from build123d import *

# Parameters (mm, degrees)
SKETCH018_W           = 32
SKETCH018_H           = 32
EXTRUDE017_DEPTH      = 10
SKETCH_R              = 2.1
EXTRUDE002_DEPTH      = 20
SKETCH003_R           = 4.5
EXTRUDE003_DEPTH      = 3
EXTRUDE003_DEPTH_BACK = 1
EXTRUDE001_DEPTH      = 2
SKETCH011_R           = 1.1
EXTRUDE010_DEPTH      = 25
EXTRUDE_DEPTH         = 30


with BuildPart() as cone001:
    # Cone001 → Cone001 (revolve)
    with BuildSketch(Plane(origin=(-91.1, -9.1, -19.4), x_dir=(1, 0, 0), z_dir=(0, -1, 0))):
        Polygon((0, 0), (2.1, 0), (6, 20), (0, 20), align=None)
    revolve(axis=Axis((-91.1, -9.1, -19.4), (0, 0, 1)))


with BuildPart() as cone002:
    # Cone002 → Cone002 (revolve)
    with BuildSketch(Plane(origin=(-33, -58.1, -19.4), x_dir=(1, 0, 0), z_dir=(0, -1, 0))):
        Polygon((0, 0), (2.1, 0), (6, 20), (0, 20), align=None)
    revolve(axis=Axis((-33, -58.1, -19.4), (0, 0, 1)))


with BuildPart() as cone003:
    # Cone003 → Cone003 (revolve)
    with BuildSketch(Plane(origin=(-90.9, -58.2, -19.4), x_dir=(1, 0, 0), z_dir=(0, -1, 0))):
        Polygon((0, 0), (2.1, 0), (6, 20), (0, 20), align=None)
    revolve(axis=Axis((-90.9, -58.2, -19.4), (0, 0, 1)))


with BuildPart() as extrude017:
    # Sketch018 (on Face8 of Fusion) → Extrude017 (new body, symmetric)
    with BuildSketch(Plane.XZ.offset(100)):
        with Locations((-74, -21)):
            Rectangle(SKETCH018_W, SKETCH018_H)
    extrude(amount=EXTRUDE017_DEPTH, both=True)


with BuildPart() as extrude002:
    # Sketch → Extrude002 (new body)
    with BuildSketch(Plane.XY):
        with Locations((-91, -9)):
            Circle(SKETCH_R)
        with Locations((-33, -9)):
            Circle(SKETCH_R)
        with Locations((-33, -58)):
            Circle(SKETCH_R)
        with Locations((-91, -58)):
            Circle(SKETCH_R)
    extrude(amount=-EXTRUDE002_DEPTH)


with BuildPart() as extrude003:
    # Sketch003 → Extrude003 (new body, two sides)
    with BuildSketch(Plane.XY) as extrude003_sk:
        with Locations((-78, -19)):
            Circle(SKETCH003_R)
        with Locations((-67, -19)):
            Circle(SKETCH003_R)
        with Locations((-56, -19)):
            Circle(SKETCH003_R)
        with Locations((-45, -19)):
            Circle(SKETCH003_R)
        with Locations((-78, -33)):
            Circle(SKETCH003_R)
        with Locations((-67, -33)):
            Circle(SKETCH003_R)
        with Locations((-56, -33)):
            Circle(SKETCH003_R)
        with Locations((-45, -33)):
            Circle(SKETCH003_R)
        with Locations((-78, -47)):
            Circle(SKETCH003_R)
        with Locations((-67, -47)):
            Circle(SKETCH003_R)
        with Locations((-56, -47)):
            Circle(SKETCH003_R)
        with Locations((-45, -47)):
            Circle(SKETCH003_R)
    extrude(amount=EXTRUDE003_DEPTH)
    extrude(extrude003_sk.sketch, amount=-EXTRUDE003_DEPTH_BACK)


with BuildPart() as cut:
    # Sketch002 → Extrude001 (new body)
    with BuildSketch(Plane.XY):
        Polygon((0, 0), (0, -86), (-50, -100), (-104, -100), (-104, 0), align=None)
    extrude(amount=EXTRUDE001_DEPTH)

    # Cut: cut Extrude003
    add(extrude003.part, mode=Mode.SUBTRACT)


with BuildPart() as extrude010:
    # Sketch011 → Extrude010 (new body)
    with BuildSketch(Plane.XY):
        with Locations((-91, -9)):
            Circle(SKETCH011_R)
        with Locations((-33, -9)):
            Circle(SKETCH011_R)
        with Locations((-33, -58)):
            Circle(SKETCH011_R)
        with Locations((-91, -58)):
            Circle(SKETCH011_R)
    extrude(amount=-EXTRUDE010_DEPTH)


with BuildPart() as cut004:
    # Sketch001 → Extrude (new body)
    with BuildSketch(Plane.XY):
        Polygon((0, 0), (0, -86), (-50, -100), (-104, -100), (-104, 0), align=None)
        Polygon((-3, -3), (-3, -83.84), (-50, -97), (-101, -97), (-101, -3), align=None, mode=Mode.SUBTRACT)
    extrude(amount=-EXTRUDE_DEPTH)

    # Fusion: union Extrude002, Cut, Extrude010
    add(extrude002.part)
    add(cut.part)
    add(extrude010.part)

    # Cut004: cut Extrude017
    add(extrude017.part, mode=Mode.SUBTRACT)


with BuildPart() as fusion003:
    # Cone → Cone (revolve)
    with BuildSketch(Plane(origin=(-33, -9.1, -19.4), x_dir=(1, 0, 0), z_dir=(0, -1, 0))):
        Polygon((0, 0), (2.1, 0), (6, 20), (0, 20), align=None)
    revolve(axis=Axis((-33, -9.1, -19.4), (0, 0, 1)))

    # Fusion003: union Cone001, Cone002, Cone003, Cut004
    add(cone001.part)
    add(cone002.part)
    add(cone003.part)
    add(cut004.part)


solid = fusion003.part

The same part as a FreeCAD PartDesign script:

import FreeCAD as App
import Part
import Sketcher
from FreeCAD import Vector
Q = App.Units.Quantity

doc = App.newDocument("Part")
body = doc.addObject("PartDesign::Body", "Body")

sketch1 = body.newObject("Sketcher::SketchObject", "Sketch")
sketch1.AttachmentSupport = (doc.getObject("XZ_Plane"), [""])
sketch1.MapMode = "FlatFace"
sketch1.AttachmentOffset = App.Placement(Vector(0, 0, 9.1), App.Rotation())
sketch1.addGeometry([
    Part.LineSegment(Vector(-91.1, -19.4, 0), Vector(-89, -19.4, 0)),
    Part.LineSegment(Vector(-89, -19.4, 0), Vector(-85.1, 0.6, 0)),
    Part.LineSegment(Vector(-85.1, 0.6, 0), Vector(-91.1, 0.6, 0)),
    Part.LineSegment(Vector(-91.1, 0.6, 0), Vector(-91.1, -19.4, 0)),
], False)
sketch1.addGeometry(Part.LineSegment(Vector(-91.1, -19.4, 0), Vector(-91.1, 0.6, 0)), True)
sketch1.addConstraint([
    Sketcher.Constraint("Coincident", 0, 2, 1, 1),
    Sketcher.Constraint("Coincident", 1, 2, 2, 1),
    Sketcher.Constraint("Coincident", 2, 2, 3, 1),
    Sketcher.Constraint("Coincident", 3, 2, 0, 1),
    Sketcher.Constraint("Horizontal", 0),
    Sketcher.Constraint("Horizontal", 2),
    Sketcher.Constraint("Vertical", 3),
    Sketcher.Constraint("Vertical", 4),
    Sketcher.Constraint("Coincident", 4, 1, 3, 2),
    Sketcher.Constraint("Horizontal", 1, 2, 4, 2),
    Sketcher.Constraint("DistanceX", 2, 2, 2, 1, Q("6 mm")),
    Sketcher.Constraint("DistanceY", 3, 2, 3, 1, Q("20 mm")),
    Sketcher.Constraint("DistanceX", 0, 1, 0, 2, Q("2.1 mm")),
    Sketcher.Constraint("DistanceX", 0, 2, -1, 1, Q("89 mm")),
    Sketcher.Constraint("DistanceY", 0, 2, -1, 1, Q("19.4 mm")),
])
revolution = body.newObject("PartDesign::Revolution", "Revolution")
revolution.Profile = sketch1
revolution.ReferenceAxis = (sketch1, ["Axis0"])
revolution.Angle = 360
body2 = doc.addObject("PartDesign::Body", "Body001")

sketch2 = body2.newObject("Sketcher::SketchObject", "Sketch001")
sketch2.AttachmentSupport = (doc.getObject("XZ_Plane001"), [""])
sketch2.MapMode = "FlatFace"
sketch2.AttachmentOffset = App.Placement(Vector(0, 0, 58.1), App.Rotation())
sketch2.addGeometry([
    Part.LineSegment(Vector(-33, -19.4, 0), Vector(-30.9, -19.4, 0)),
    Part.LineSegment(Vector(-30.9, -19.4, 0), Vector(-27, 0.6, 0)),
    Part.LineSegment(Vector(-27, 0.6, 0), Vector(-33, 0.6, 0)),
    Part.LineSegment(Vector(-33, 0.6, 0), Vector(-33, -19.4, 0)),
], False)
sketch2.addGeometry(Part.LineSegment(Vector(-33, -19.4, 0), Vector(-33, 0.6, 0)), True)
sketch2.addConstraint([
    Sketcher.Constraint("Coincident", 0, 2, 1, 1),
    Sketcher.Constraint("Coincident", 1, 2, 2, 1),
    Sketcher.Constraint("Coincident", 2, 2, 3, 1),
    Sketcher.Constraint("Coincident", 3, 2, 0, 1),
    Sketcher.Constraint("Horizontal", 0),
    Sketcher.Constraint("Horizontal", 2),
    Sketcher.Constraint("Vertical", 3),
    Sketcher.Constraint("Vertical", 4),
    Sketcher.Constraint("Coincident", 4, 1, 3, 2),
    Sketcher.Constraint("Horizontal", 1, 2, 4, 2),
    Sketcher.Constraint("DistanceX", 2, 2, 2, 1, Q("6 mm")),
    Sketcher.Constraint("DistanceY", 3, 2, 3, 1, Q("20 mm")),
    Sketcher.Constraint("DistanceX", 0, 1, 0, 2, Q("2.1 mm")),
    Sketcher.Constraint("DistanceX", 1, 2, -1, 1, Q("27 mm")),
    Sketcher.Constraint("DistanceY", 0, 2, -1, 1, Q("19.4 mm")),
])
revolution2 = body2.newObject("PartDesign::Revolution", "Revolution001")
revolution2.Profile = sketch2
revolution2.ReferenceAxis = (sketch2, ["Axis0"])
revolution2.Angle = 360
body3 = doc.addObject("PartDesign::Body", "Body002")

sketch3 = body3.newObject("Sketcher::SketchObject", "Sketch002")
sketch3.AttachmentSupport = (doc.getObject("XZ_Plane002"), [""])
sketch3.MapMode = "FlatFace"
sketch3.AttachmentOffset = App.Placement(Vector(0, 0, 58.2), App.Rotation())
sketch3.addGeometry([
    Part.LineSegment(Vector(-90.9, -19.4, 0), Vector(-88.8, -19.4, 0)),
    Part.LineSegment(Vector(-88.8, -19.4, 0), Vector(-84.9, 0.6, 0)),
    Part.LineSegment(Vector(-84.9, 0.6, 0), Vector(-90.9, 0.6, 0)),
    Part.LineSegment(Vector(-90.9, 0.6, 0), Vector(-90.9, -19.4, 0)),
], False)
sketch3.addGeometry(Part.LineSegment(Vector(-90.9, -19.4, 0), Vector(-90.9, 0.6, 0)), True)
sketch3.addConstraint([
    Sketcher.Constraint("Coincident", 0, 2, 1, 1),
    Sketcher.Constraint("Coincident", 1, 2, 2, 1),
    Sketcher.Constraint("Coincident", 2, 2, 3, 1),
    Sketcher.Constraint("Coincident", 3, 2, 0, 1),
    Sketcher.Constraint("Horizontal", 0),
    Sketcher.Constraint("Horizontal", 2),
    Sketcher.Constraint("Vertical", 3),
    Sketcher.Constraint("Vertical", 4),
    Sketcher.Constraint("Coincident", 4, 1, 3, 2),
    Sketcher.Constraint("Horizontal", 1, 2, 4, 2),
    Sketcher.Constraint("DistanceX", 2, 2, 2, 1, Q("6 mm")),
    Sketcher.Constraint("DistanceY", 3, 2, 3, 1, Q("20 mm")),
    Sketcher.Constraint("DistanceX", 0, 1, 0, 2, Q("2.1 mm")),
    Sketcher.Constraint("DistanceX", 0, 2, -1, 1, Q("88.8 mm")),
    Sketcher.Constraint("DistanceY", 0, 2, -1, 1, Q("19.4 mm")),
])
revolution3 = body3.newObject("PartDesign::Revolution", "Revolution002")
revolution3.Profile = sketch3
revolution3.ReferenceAxis = (sketch3, ["Axis0"])
revolution3.Angle = 360
body4 = doc.addObject("PartDesign::Body", "Body003")

sketch4 = body4.newObject("Sketcher::SketchObject", "Sketch003")
sketch4.AttachmentSupport = (doc.getObject("XZ_Plane003"), [""])
sketch4.MapMode = "FlatFace"
sketch4.AttachmentOffset = App.Placement(Vector(0, 0, 100), App.Rotation())
sketch4.addGeometry([
    Part.LineSegment(Vector(-90, -5, 0), Vector(-90, -37, 0)),
    Part.LineSegment(Vector(-90, -37, 0), Vector(-58, -37, 0)),
    Part.LineSegment(Vector(-58, -37, 0), Vector(-58, -5, 0)),
    Part.LineSegment(Vector(-58, -5, 0), Vector(-90, -5, 0)),
], False)
sketch4.addConstraint([
    Sketcher.Constraint("Coincident", 0, 2, 1, 1),
    Sketcher.Constraint("Coincident", 1, 2, 2, 1),
    Sketcher.Constraint("Coincident", 2, 2, 3, 1),
    Sketcher.Constraint("Coincident", 3, 2, 0, 1),
    Sketcher.Constraint("Vertical", 0),
    Sketcher.Constraint("Horizontal", 1),
    Sketcher.Constraint("Vertical", 2),
    Sketcher.Constraint("Horizontal", 3),
    Sketcher.Constraint("Equal", 3, 0),
    Sketcher.Constraint("DistanceX", 1, 1, 1, 2, Q("32 mm")),
    Sketcher.Constraint("DistanceX", 0, 2, -1, 1, Q("90 mm")),
    Sketcher.Constraint("DistanceY", 0, 2, -1, 1, Q("37 mm")),
])
pad1 = body4.newObject("PartDesign::Pad", "Pad")
pad1.Profile = sketch4
pad1.Length = 20
pad1.Midplane = True
body5 = doc.addObject("PartDesign::Body", "Body004")
body5.AllowCompound = True

sketch5 = body5.newObject("Sketcher::SketchObject", "Sketch004")
sketch5.AttachmentSupport = (doc.getObject("XY_Plane004"), [""])
sketch5.MapMode = "FlatFace"
sketch5.addGeometry([
    Part.Circle(Vector(-91, -9, 0), Vector(0, 0, 1), 2.1),
    Part.Circle(Vector(-33, -9, 0), Vector(0, 0, 1), 2.1),
    Part.Circle(Vector(-33, -58, 0), Vector(0, 0, 1), 2.1),
    Part.Circle(Vector(-91, -58, 0), Vector(0, 0, 1), 2.1),
], False)
sketch5.addConstraint([
    Sketcher.Constraint("Equal", 0, 1),
    Sketcher.Constraint("Equal", 1, 2),
    Sketcher.Constraint("Equal", 2, 3),
    Sketcher.Constraint("Horizontal", 0, 3, 1, 3),
    Sketcher.Constraint("Horizontal", 2, 3, 3, 3),
    Sketcher.Constraint("Vertical", 1, 3, 2, 3),
    Sketcher.Constraint("Vertical", 0, 3, 3, 3),
    Sketcher.Constraint("Diameter", 0, Q("4.2 mm")),
    Sketcher.Constraint("DistanceX", 0, 3, -1, 1, Q("91 mm")),
    Sketcher.Constraint("DistanceY", 0, 3, -1, 1, Q("9 mm")),
    Sketcher.Constraint("DistanceX", 1, 3, -1, 1, Q("33 mm")),
    Sketcher.Constraint("DistanceY", 2, 3, -1, 1, Q("58 mm")),
])
pad2 = body5.newObject("PartDesign::Pad", "Pad001")
pad2.Profile = sketch5
pad2.Length = 20
pad2.Reversed = True
body6 = doc.addObject("PartDesign::Body", "Body005")
body6.AllowCompound = True

sketch6 = body6.newObject("Sketcher::SketchObject", "Sketch005")
sketch6.AttachmentSupport = (doc.getObject("XY_Plane005"), [""])
sketch6.MapMode = "FlatFace"
sketch6.addGeometry([
    Part.Circle(Vector(-78, -19, 0), Vector(0, 0, 1), 4.5),
    Part.Circle(Vector(-67, -19, 0), Vector(0, 0, 1), 4.5),
    Part.Circle(Vector(-56, -19, 0), Vector(0, 0, 1), 4.5),
    Part.Circle(Vector(-45, -19, 0), Vector(0, 0, 1), 4.5),
    Part.Circle(Vector(-78, -33, 0), Vector(0, 0, 1), 4.5),
    Part.Circle(Vector(-67, -33, 0), Vector(0, 0, 1), 4.5),
    Part.Circle(Vector(-56, -33, 0), Vector(0, 0, 1), 4.5),
    Part.Circle(Vector(-45, -33, 0), Vector(0, 0, 1), 4.5),
    Part.Circle(Vector(-78, -47, 0), Vector(0, 0, 1), 4.5),
    Part.Circle(Vector(-67, -47, 0), Vector(0, 0, 1), 4.5),
    Part.Circle(Vector(-56, -47, 0), Vector(0, 0, 1), 4.5),
    Part.Circle(Vector(-45, -47, 0), Vector(0, 0, 1), 4.5),
], False)
sketch6.addConstraint([
    Sketcher.Constraint("Equal", 0, 1),
    Sketcher.Constraint("Equal", 1, 2),
    Sketcher.Constraint("Equal", 2, 3),
    Sketcher.Constraint("Equal", 3, 4),
    Sketcher.Constraint("Equal", 4, 5),
    Sketcher.Constraint("Equal", 5, 6),
    Sketcher.Constraint("Equal", 6, 7),
    Sketcher.Constraint("Equal", 7, 8),
    Sketcher.Constraint("Equal", 8, 9),
    Sketcher.Constraint("Equal", 9, 10),
    Sketcher.Constraint("Equal", 10, 11),
    Sketcher.Constraint("Horizontal", 0, 3, 1, 3),
    Sketcher.Constraint("Horizontal", 1, 3, 2, 3),
    Sketcher.Constraint("Horizontal", 2, 3, 3, 3),
    Sketcher.Constraint("Horizontal", 4, 3, 5, 3),
    Sketcher.Constraint("Horizontal", 5, 3, 6, 3),
    Sketcher.Constraint("Horizontal", 6, 3, 7, 3),
    Sketcher.Constraint("Horizontal", 8, 3, 9, 3),
    Sketcher.Constraint("Horizontal", 9, 3, 10, 3),
    Sketcher.Constraint("Horizontal", 10, 3, 11, 3),
    Sketcher.Constraint("Vertical", 0, 3, 4, 3),
    Sketcher.Constraint("Vertical", 1, 3, 5, 3),
    Sketcher.Constraint("Vertical", 2, 3, 6, 3),
    Sketcher.Constraint("Vertical", 3, 3, 7, 3),
    Sketcher.Constraint("Vertical", 4, 3, 8, 3),
    Sketcher.Constraint("Vertical", 5, 3, 9, 3),
    Sketcher.Constraint("Vertical", 6, 3, 10, 3),
    Sketcher.Constraint("Vertical", 7, 3, 11, 3),
    Sketcher.Constraint("Diameter", 0, Q("9 mm")),
    Sketcher.Constraint("DistanceX", 0, 3, -1, 1, Q("78 mm")),
    Sketcher.Constraint("DistanceY", 0, 3, -1, 1, Q("19 mm")),
    Sketcher.Constraint("DistanceX", 1, 3, -1, 1, Q("67 mm")),
    Sketcher.Constraint("DistanceX", 2, 3, -1, 1, Q("56 mm")),
    Sketcher.Constraint("DistanceX", 3, 3, -1, 1, Q("45 mm")),
    Sketcher.Constraint("DistanceY", 4, 3, -1, 1, Q("33 mm")),
    Sketcher.Constraint("DistanceY", 8, 3, -1, 1, Q("47 mm")),
])
pad3 = body6.newObject("PartDesign::Pad", "Pad002")
pad3.Profile = sketch6
pad3.Type = "TwoLengths"
pad3.Length = 3
pad3.Length2 = 1
body7 = doc.addObject("PartDesign::Body", "Body006")

sketch7 = body7.newObject("Sketcher::SketchObject", "Sketch006")
sketch7.AttachmentSupport = (doc.getObject("XY_Plane006"), [""])
sketch7.MapMode = "FlatFace"
sketch7.addGeometry([
    Part.LineSegment(Vector(0, -86, 0), Vector(0, 0, 0)),
    Part.LineSegment(Vector(0, 0, 0), Vector(-104, 0, 0)),
    Part.LineSegment(Vector(-104, 0, 0), Vector(-104, -100, 0)),
    Part.LineSegment(Vector(-104, -100, 0), Vector(-50, -100, 0)),
    Part.LineSegment(Vector(-50, -100, 0), Vector(0, -86, 0)),
], False)
sketch7.addConstraint([
    Sketcher.Constraint("Coincident", 0, 2, 1, 1),
    Sketcher.Constraint("Coincident", 1, 2, 2, 1),
    Sketcher.Constraint("Coincident", 2, 2, 3, 1),
    Sketcher.Constraint("Coincident", 3, 2, 4, 1),
    Sketcher.Constraint("Coincident", 4, 2, 0, 1),
    Sketcher.Constraint("Vertical", 0),
    Sketcher.Constraint("Horizontal", 1),
    Sketcher.Constraint("Vertical", 2),
    Sketcher.Constraint("Horizontal", 3),
    Sketcher.Constraint("Coincident", 0, 2, -1, 1),
    Sketcher.Constraint("DistanceX", 1, 2, 1, 1, Q("104 mm")),
    Sketcher.Constraint("DistanceX", 3, 1, 3, 2, Q("54 mm")),
    Sketcher.Constraint("DistanceY", 0, 1, 0, 2, Q("86 mm")),
    Sketcher.Constraint("DistanceY", 2, 2, 2, 1, Q("100 mm")),
])
pad4 = body7.newObject("PartDesign::Pad", "Pad003")
pad4.Profile = sketch7
pad4.Length = 2
doc.recompute()

boolean = body7.newObject("PartDesign::Boolean", "Boolean")
boolean.Type = "Cut"
boolean.addObjects([body6])
body8 = doc.addObject("PartDesign::Body", "Body007")
body8.AllowCompound = True

sketch8 = body8.newObject("Sketcher::SketchObject", "Sketch007")
sketch8.AttachmentSupport = (doc.getObject("XY_Plane007"), [""])
sketch8.MapMode = "FlatFace"
sketch8.addGeometry([
    Part.Circle(Vector(-91, -9, 0), Vector(0, 0, 1), 1.1),
    Part.Circle(Vector(-33, -9, 0), Vector(0, 0, 1), 1.1),
    Part.Circle(Vector(-33, -58, 0), Vector(0, 0, 1), 1.1),
    Part.Circle(Vector(-91, -58, 0), Vector(0, 0, 1), 1.1),
], False)
sketch8.addConstraint([
    Sketcher.Constraint("Equal", 0, 1),
    Sketcher.Constraint("Equal", 1, 2),
    Sketcher.Constraint("Equal", 2, 3),
    Sketcher.Constraint("Horizontal", 0, 3, 1, 3),
    Sketcher.Constraint("Horizontal", 2, 3, 3, 3),
    Sketcher.Constraint("Vertical", 1, 3, 2, 3),
    Sketcher.Constraint("Vertical", 0, 3, 3, 3),
    Sketcher.Constraint("Diameter", 0, Q("2.2 mm")),
    Sketcher.Constraint("DistanceX", 0, 3, -1, 1, Q("91 mm")),
    Sketcher.Constraint("DistanceY", 0, 3, -1, 1, Q("9 mm")),
    Sketcher.Constraint("DistanceX", 1, 3, -1, 1, Q("33 mm")),
    Sketcher.Constraint("DistanceY", 2, 3, -1, 1, Q("58 mm")),
])
pad5 = body8.newObject("PartDesign::Pad", "Pad004")
pad5.Profile = sketch8
pad5.Length = 25
pad5.Reversed = True
body9 = doc.addObject("PartDesign::Body", "Body008")
body9.AllowCompound = True

sketch9 = body9.newObject("Sketcher::SketchObject", "Sketch008")
sketch9.AttachmentSupport = (doc.getObject("XY_Plane008"), [""])
sketch9.MapMode = "FlatFace"
sketch9.addGeometry([
    Part.LineSegment(Vector(0, -86, 0), Vector(0, 0, 0)),
    Part.LineSegment(Vector(0, 0, 0), Vector(-104, 0, 0)),
    Part.LineSegment(Vector(-104, 0, 0), Vector(-104, -100, 0)),
    Part.LineSegment(Vector(-104, -100, 0), Vector(-50, -100, 0)),
    Part.LineSegment(Vector(-50, -100, 0), Vector(0, -86, 0)),
    Part.LineSegment(Vector(-3, -3, 0), Vector(-3, -84, 0)),
    Part.LineSegment(Vector(-3, -84, 0), Vector(-50, -97, 0)),
    Part.LineSegment(Vector(-50, -97, 0), Vector(-101, -97, 0)),
    Part.LineSegment(Vector(-101, -97, 0), Vector(-101, -3, 0)),
    Part.LineSegment(Vector(-101, -3, 0), Vector(-3, -3, 0)),
], False)
sketch9.addConstraint([
    Sketcher.Constraint("Coincident", 0, 2, 1, 1),
    Sketcher.Constraint("Coincident", 1, 2, 2, 1),
    Sketcher.Constraint("Coincident", 2, 2, 3, 1),
    Sketcher.Constraint("Coincident", 3, 2, 4, 1),
    Sketcher.Constraint("Coincident", 4, 2, 0, 1),
    Sketcher.Constraint("Coincident", 5, 2, 6, 1),
    Sketcher.Constraint("Coincident", 6, 2, 7, 1),
    Sketcher.Constraint("Coincident", 7, 2, 8, 1),
    Sketcher.Constraint("Coincident", 8, 2, 9, 1),
    Sketcher.Constraint("Coincident", 9, 2, 5, 1),
    Sketcher.Constraint("Vertical", 0),
    Sketcher.Constraint("Horizontal", 1),
    Sketcher.Constraint("Vertical", 2),
    Sketcher.Constraint("Horizontal", 3),
    Sketcher.Constraint("Vertical", 5),
    Sketcher.Constraint("Horizontal", 7),
    Sketcher.Constraint("Vertical", 8),
    Sketcher.Constraint("Horizontal", 9),
    Sketcher.Constraint("Coincident", 0, 2, -1, 1),
    Sketcher.Constraint("Parallel", 4, 6),
    Sketcher.Constraint("Vertical", 3, 2, 6, 2),
    Sketcher.Constraint("DistanceX", 1, 2, 1, 1, Q("104 mm")),
    Sketcher.Constraint("DistanceX", 3, 1, 3, 2, Q("54 mm")),
    Sketcher.Constraint("DistanceX", 7, 2, 7, 1, Q("51 mm")),
    Sketcher.Constraint("DistanceX", 9, 1, 9, 2, Q("98 mm")),
    Sketcher.Constraint("DistanceY", 0, 1, 0, 2, Q("86 mm")),
    Sketcher.Constraint("DistanceY", 2, 2, 2, 1, Q("100 mm")),
    Sketcher.Constraint("DistanceY", 8, 1, 8, 2, Q("94 mm")),
    Sketcher.Constraint("DistanceY", 6, 2, -1, 1, Q("97 mm")),
])
pad6 = body9.newObject("PartDesign::Pad", "Pad005")
pad6.Profile = sketch9
pad6.Length = 30
pad6.Reversed = True
doc.recompute()

boolean2 = body9.newObject("PartDesign::Boolean", "Boolean001")
boolean2.Type = "Fuse"
boolean2.addObjects([body5])
doc.recompute()

boolean3 = body9.newObject("PartDesign::Boolean", "Boolean002")
boolean3.Type = "Fuse"
boolean3.addObjects([body7])
doc.recompute()

boolean4 = body9.newObject("PartDesign::Boolean", "Boolean003")
boolean4.Type = "Fuse"
boolean4.addObjects([body8])
doc.recompute()

boolean5 = body9.newObject("PartDesign::Boolean", "Boolean004")
boolean5.Type = "Cut"
boolean5.addObjects([body4])
body10 = doc.addObject("PartDesign::Body", "Body009")
body10.AllowCompound = True

sketch10 = body10.newObject("Sketcher::SketchObject", "Sketch009")
sketch10.AttachmentSupport = (doc.getObject("XZ_Plane009"), [""])
sketch10.MapMode = "FlatFace"
sketch10.AttachmentOffset = App.Placement(Vector(0, 0, 9.1), App.Rotation())
sketch10.addGeometry([
    Part.LineSegment(Vector(-33, -19.4, 0), Vector(-30.9, -19.4, 0)),
    Part.LineSegment(Vector(-30.9, -19.4, 0), Vector(-27, 0.6, 0)),
    Part.LineSegment(Vector(-27, 0.6, 0), Vector(-33, 0.6, 0)),
    Part.LineSegment(Vector(-33, 0.6, 0), Vector(-33, -19.4, 0)),
], False)
sketch10.addGeometry(Part.LineSegment(Vector(-33, -19.4, 0), Vector(-33, 0.6, 0)), True)
sketch10.addConstraint([
    Sketcher.Constraint("Coincident", 0, 2, 1, 1),
    Sketcher.Constraint("Coincident", 1, 2, 2, 1),
    Sketcher.Constraint("Coincident", 2, 2, 3, 1),
    Sketcher.Constraint("Coincident", 3, 2, 0, 1),
    Sketcher.Constraint("Horizontal", 0),
    Sketcher.Constraint("Horizontal", 2),
    Sketcher.Constraint("Vertical", 3),
    Sketcher.Constraint("Vertical", 4),
    Sketcher.Constraint("Coincident", 4, 1, 3, 2),
    Sketcher.Constraint("Horizontal", 1, 2, 4, 2),
    Sketcher.Constraint("DistanceX", 2, 2, 2, 1, Q("6 mm")),
    Sketcher.Constraint("DistanceY", 3, 2, 3, 1, Q("20 mm")),
    Sketcher.Constraint("DistanceX", 0, 1, 0, 2, Q("2.1 mm")),
    Sketcher.Constraint("DistanceX", 1, 2, -1, 1, Q("27 mm")),
    Sketcher.Constraint("DistanceY", 0, 2, -1, 1, Q("19.4 mm")),
])
revolution4 = body10.newObject("PartDesign::Revolution", "Revolution003")
revolution4.Profile = sketch10
revolution4.ReferenceAxis = (sketch10, ["Axis0"])
revolution4.Angle = 360
doc.recompute()

boolean6 = body10.newObject("PartDesign::Boolean", "Boolean005")
boolean6.Type = "Fuse"
boolean6.addObjects([body])
doc.recompute()

boolean7 = body10.newObject("PartDesign::Boolean", "Boolean006")
boolean7.Type = "Fuse"
boolean7.addObjects([body2])
doc.recompute()

boolean8 = body10.newObject("PartDesign::Boolean", "Boolean007")
boolean8.Type = "Fuse"
boolean8.addObjects([body3])
doc.recompute()

boolean9 = body10.newObject("PartDesign::Boolean", "Boolean008")
boolean9.Type = "Fuse"
boolean9.addObjects([body9])

doc.recompute()
